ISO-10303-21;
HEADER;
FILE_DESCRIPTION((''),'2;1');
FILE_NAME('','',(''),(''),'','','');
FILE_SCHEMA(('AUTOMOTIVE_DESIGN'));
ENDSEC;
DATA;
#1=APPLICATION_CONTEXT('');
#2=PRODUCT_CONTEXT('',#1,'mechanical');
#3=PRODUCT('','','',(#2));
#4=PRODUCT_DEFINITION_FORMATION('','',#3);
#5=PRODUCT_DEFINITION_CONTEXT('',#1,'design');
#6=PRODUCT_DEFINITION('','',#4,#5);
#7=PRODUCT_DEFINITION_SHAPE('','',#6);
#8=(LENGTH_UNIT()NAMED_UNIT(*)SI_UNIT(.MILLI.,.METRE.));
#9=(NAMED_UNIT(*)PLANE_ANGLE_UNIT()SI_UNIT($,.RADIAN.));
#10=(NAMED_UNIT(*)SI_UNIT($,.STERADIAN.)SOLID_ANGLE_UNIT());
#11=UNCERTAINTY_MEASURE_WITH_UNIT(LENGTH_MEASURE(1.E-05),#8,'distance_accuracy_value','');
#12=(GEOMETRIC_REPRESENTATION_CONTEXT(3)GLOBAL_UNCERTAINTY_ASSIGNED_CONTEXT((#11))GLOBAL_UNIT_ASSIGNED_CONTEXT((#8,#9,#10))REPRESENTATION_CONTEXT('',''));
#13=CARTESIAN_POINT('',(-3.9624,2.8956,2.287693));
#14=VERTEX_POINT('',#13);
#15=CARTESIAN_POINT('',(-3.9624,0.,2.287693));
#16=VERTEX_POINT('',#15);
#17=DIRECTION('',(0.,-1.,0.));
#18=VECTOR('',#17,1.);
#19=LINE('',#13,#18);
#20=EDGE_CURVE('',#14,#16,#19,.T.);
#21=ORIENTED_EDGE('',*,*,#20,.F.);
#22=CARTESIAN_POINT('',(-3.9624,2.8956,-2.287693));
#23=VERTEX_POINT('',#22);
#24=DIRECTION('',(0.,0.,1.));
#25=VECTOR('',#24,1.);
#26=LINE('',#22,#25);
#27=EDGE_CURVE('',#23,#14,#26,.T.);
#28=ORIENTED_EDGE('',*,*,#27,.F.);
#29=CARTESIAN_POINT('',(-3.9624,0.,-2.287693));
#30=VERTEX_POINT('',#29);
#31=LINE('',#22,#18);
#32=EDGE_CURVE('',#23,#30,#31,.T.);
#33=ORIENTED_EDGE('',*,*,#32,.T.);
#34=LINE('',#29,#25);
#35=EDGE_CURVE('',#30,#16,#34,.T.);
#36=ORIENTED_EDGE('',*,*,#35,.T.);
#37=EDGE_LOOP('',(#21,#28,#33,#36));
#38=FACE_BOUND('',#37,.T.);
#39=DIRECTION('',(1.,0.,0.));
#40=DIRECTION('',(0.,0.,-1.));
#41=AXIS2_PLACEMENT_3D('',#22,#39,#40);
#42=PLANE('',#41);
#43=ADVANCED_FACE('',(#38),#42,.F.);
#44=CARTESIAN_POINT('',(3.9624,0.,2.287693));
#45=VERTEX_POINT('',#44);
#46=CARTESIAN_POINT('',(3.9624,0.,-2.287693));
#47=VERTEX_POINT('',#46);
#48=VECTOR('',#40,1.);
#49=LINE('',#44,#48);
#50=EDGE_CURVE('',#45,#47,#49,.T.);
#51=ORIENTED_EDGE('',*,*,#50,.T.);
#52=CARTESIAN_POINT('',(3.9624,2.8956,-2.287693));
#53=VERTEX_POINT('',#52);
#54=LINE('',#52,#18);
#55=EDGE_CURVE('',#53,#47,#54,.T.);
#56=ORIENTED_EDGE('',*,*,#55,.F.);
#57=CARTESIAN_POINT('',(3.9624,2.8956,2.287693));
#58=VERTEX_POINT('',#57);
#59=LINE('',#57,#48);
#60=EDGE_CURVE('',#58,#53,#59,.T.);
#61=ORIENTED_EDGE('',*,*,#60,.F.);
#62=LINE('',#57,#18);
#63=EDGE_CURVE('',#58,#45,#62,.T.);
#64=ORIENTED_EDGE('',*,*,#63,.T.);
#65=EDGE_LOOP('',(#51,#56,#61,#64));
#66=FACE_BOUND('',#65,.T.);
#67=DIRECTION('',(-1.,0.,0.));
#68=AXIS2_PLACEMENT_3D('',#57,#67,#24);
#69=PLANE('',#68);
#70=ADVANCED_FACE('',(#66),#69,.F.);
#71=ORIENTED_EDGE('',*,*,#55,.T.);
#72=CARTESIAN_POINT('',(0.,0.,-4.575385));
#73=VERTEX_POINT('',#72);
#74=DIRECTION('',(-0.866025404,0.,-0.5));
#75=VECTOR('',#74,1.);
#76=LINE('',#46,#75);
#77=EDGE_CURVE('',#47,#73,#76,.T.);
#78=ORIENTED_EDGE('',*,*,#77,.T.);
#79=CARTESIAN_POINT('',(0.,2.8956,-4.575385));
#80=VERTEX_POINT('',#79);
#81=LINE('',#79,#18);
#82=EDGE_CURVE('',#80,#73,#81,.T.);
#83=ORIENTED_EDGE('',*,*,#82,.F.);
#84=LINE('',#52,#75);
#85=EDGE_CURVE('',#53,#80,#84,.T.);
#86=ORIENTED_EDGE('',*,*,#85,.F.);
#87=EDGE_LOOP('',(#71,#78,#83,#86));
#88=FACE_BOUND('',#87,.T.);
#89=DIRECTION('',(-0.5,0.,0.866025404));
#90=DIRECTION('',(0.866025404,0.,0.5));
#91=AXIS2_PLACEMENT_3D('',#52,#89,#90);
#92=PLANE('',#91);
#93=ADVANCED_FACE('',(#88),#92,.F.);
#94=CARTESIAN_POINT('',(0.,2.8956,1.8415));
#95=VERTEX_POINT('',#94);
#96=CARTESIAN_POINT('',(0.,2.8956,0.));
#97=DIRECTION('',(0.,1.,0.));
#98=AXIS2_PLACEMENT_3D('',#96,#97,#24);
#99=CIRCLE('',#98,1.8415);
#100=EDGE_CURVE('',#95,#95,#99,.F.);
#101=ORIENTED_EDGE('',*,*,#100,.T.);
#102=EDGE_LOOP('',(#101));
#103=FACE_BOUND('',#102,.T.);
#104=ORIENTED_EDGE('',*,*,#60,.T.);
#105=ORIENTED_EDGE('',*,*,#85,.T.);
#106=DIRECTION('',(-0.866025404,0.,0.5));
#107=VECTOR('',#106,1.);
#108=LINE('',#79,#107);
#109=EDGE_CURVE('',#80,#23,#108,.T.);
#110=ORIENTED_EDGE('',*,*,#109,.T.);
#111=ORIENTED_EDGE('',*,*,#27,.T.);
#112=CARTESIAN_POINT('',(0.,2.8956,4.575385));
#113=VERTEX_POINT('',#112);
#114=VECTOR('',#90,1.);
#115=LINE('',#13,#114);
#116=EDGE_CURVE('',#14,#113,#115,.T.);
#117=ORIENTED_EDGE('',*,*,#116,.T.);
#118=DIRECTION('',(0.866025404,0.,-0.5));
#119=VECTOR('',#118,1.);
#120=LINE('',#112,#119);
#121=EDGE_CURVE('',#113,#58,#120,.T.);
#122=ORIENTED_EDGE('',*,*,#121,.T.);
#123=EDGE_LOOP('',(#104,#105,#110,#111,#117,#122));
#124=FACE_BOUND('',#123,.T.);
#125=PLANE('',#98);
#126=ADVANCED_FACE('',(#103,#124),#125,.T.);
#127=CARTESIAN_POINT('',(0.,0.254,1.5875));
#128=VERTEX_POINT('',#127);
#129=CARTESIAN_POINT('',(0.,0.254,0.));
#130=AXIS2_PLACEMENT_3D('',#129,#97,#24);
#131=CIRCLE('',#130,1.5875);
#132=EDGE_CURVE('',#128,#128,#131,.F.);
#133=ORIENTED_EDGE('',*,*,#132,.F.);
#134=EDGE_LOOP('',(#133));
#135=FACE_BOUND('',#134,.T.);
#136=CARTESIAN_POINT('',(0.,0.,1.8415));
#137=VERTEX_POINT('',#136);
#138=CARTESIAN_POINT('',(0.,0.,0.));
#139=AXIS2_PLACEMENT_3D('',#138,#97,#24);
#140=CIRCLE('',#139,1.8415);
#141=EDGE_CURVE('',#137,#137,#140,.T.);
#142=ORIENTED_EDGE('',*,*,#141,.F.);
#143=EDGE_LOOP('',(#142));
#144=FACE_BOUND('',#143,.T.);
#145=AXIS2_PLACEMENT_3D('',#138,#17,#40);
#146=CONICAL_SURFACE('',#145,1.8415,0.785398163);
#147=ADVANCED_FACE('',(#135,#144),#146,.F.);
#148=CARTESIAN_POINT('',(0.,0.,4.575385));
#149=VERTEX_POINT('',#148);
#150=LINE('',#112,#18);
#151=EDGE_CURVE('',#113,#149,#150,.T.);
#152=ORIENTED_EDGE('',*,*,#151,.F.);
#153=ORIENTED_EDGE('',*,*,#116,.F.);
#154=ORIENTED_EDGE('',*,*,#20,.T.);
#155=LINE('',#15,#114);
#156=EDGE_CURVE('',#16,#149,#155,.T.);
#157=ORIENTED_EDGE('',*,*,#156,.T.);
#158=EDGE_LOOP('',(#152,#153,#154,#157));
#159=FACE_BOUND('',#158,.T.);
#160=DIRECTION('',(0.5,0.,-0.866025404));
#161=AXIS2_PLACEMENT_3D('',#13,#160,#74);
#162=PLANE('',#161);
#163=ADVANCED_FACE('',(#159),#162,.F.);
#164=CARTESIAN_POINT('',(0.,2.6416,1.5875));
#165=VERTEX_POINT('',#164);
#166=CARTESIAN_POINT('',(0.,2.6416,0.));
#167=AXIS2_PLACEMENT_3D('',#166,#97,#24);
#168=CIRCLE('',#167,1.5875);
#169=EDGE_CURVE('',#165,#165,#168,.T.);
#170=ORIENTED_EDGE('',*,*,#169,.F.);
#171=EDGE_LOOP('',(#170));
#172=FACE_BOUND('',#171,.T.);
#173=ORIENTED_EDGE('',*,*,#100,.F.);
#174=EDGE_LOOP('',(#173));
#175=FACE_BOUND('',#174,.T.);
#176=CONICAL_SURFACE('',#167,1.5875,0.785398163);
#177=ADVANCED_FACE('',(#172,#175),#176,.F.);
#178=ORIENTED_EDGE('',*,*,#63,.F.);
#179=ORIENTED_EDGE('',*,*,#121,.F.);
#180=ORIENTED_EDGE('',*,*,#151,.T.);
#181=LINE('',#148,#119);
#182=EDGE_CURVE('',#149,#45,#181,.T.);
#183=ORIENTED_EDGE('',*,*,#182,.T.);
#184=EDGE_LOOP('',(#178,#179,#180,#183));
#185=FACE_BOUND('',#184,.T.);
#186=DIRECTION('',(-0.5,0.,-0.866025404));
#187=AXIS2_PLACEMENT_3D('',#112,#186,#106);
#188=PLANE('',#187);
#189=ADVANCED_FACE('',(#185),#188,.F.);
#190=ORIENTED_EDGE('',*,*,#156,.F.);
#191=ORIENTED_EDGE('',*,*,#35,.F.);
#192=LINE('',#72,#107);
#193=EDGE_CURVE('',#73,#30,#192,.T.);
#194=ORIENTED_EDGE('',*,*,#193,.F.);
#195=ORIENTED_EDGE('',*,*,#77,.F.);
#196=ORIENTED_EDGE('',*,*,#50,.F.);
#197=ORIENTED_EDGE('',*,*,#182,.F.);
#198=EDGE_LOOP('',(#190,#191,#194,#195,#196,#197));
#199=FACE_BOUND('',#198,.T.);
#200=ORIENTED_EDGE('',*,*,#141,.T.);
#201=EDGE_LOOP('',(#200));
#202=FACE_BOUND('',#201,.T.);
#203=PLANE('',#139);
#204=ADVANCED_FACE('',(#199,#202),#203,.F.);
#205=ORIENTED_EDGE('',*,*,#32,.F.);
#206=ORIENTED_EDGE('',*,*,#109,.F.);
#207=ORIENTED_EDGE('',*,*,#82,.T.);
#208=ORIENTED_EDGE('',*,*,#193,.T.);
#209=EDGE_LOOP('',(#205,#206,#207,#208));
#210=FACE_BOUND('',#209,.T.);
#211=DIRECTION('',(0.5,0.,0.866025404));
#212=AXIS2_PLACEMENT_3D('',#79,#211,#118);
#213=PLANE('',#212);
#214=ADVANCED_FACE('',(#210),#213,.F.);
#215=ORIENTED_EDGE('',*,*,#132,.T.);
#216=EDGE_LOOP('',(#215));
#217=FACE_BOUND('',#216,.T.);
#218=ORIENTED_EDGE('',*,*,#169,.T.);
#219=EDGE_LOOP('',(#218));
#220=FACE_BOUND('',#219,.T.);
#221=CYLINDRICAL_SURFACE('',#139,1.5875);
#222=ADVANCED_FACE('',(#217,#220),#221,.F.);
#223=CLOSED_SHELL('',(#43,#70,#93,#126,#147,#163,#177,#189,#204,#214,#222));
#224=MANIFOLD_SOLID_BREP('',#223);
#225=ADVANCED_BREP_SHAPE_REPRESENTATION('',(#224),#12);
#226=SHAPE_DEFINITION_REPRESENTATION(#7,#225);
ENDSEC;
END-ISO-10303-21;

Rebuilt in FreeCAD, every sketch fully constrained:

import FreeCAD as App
import Part
import Sketcher

V = App.Vector
Q = App.Units.Quantity


def edges_at(feature, points):
    """Names of the edges that pass closest to the given points."""
    edges = feature.Shape.Edges
    near = lambda p: min(range(len(edges)), key=lambda i: edges[i].distToShape(Part.Vertex(*p))[0])
    return sorted({f"Edge{near(p) + 1}" for p in points})


def add_polygon(sketch, points):
    """Adds a closed chain of lines whose ends are joined by coincident constraints."""
    first, n = sketch.GeometryCount, len(points)
    for a, b in zip(points, points[1:] + points[:1]):
        sketch.addGeometry(Part.LineSegment(App.Vector(*a, 0), App.Vector(*b, 0)), False)
    for i in range(n):
        sketch.addConstraint(Sketcher.Constraint("Coincident", first + i, 2, first + (i + 1) % n, 1))

doc = App.newDocument("Part")
body = doc.addObject("PartDesign::Body", "Body")

# Sketch on XZ plane
sketch1 = body.newObject("Sketcher::SketchObject", "Sketch")
sketch1.AttachmentSupport = (doc.getObject("XZ_Plane"), [""])
sketch1.MapMode = "FlatFace"
add_polygon(sketch1, [(0, 4.6), (4, 2.3), (4, -2.3), (0, -4.6), (-4, -2.3), (-4, 2.3)])  # lines 0-5
sketch1.addConstraint([
    Sketcher.Constraint("Vertical", 1),
    Sketcher.Constraint("Vertical", 4),
    Sketcher.Constraint("Symmetric", 0, 2, 3, 2, -1, 1),
    Sketcher.Constraint("Symmetric", 2, 2, 5, 2, -1, 1),
    Sketcher.Constraint("PointOnObject", 2, 2, -2),
    Sketcher.Constraint("Parallel", 2, 5),
    Sketcher.Constraint("Horizontal", 1, 2, 3, 2),
    Sketcher.Constraint("Angle", 0, Q("-30 deg")),
    Sketcher.Constraint("DistanceX", -1, 1, 0, 2, Q("0.156 in")),
    Sketcher.Constraint("DistanceY", 2, 2, 0, 2, Q("0.2701999 in")),
])
pad1 = body.newObject("PartDesign::Pad", "Pad")
pad1.Profile = sketch1
pad1.Length = Q("0.114 in")
pad1.Reversed = True

# Sketch on XZ plane
sketch2 = body.newObject("Sketcher::SketchObject", "Sketch001")
sketch2.AttachmentSupport = (doc.getObject("XZ_Plane"), [""])
sketch2.MapMode = "FlatFace"
sketch2.AttachmentOffset = App.Placement(V(0, 0, -0.114 * 25.4), App.Rotation())
sketch2.addGeometry(Part.Circle(V(0, 0, 0), V(0, 0, 1), 1.6), False)
sketch2.addConstraint([
    Sketcher.Constraint("Coincident", 0, 3, -1, 1),
    Sketcher.Constraint("Diameter", 0, Q("0.125 in")),
])
pocket1 = body.newObject("PartDesign::Pocket", "Pocket")
pocket1.Profile = sketch2
pocket1.Length = Q("0.114 in")
pocket1.Reversed = True
doc.recompute()

chamfer = body.newObject("PartDesign::Chamfer", "Chamfer")
chamfer.Base = (pocket1, edges_at(pocket1, [(-1.587, 2.896, 0)]))
chamfer.Size = Q("0.01 in")
doc.recompute()

chamfer2 = body.newObject("PartDesign::Chamfer", "Chamfer001")
chamfer2.Base = (chamfer, edges_at(chamfer, [(-1.587, 0, 0)]))
chamfer2.Size = Q("0.01 in")

doc.recompute()
